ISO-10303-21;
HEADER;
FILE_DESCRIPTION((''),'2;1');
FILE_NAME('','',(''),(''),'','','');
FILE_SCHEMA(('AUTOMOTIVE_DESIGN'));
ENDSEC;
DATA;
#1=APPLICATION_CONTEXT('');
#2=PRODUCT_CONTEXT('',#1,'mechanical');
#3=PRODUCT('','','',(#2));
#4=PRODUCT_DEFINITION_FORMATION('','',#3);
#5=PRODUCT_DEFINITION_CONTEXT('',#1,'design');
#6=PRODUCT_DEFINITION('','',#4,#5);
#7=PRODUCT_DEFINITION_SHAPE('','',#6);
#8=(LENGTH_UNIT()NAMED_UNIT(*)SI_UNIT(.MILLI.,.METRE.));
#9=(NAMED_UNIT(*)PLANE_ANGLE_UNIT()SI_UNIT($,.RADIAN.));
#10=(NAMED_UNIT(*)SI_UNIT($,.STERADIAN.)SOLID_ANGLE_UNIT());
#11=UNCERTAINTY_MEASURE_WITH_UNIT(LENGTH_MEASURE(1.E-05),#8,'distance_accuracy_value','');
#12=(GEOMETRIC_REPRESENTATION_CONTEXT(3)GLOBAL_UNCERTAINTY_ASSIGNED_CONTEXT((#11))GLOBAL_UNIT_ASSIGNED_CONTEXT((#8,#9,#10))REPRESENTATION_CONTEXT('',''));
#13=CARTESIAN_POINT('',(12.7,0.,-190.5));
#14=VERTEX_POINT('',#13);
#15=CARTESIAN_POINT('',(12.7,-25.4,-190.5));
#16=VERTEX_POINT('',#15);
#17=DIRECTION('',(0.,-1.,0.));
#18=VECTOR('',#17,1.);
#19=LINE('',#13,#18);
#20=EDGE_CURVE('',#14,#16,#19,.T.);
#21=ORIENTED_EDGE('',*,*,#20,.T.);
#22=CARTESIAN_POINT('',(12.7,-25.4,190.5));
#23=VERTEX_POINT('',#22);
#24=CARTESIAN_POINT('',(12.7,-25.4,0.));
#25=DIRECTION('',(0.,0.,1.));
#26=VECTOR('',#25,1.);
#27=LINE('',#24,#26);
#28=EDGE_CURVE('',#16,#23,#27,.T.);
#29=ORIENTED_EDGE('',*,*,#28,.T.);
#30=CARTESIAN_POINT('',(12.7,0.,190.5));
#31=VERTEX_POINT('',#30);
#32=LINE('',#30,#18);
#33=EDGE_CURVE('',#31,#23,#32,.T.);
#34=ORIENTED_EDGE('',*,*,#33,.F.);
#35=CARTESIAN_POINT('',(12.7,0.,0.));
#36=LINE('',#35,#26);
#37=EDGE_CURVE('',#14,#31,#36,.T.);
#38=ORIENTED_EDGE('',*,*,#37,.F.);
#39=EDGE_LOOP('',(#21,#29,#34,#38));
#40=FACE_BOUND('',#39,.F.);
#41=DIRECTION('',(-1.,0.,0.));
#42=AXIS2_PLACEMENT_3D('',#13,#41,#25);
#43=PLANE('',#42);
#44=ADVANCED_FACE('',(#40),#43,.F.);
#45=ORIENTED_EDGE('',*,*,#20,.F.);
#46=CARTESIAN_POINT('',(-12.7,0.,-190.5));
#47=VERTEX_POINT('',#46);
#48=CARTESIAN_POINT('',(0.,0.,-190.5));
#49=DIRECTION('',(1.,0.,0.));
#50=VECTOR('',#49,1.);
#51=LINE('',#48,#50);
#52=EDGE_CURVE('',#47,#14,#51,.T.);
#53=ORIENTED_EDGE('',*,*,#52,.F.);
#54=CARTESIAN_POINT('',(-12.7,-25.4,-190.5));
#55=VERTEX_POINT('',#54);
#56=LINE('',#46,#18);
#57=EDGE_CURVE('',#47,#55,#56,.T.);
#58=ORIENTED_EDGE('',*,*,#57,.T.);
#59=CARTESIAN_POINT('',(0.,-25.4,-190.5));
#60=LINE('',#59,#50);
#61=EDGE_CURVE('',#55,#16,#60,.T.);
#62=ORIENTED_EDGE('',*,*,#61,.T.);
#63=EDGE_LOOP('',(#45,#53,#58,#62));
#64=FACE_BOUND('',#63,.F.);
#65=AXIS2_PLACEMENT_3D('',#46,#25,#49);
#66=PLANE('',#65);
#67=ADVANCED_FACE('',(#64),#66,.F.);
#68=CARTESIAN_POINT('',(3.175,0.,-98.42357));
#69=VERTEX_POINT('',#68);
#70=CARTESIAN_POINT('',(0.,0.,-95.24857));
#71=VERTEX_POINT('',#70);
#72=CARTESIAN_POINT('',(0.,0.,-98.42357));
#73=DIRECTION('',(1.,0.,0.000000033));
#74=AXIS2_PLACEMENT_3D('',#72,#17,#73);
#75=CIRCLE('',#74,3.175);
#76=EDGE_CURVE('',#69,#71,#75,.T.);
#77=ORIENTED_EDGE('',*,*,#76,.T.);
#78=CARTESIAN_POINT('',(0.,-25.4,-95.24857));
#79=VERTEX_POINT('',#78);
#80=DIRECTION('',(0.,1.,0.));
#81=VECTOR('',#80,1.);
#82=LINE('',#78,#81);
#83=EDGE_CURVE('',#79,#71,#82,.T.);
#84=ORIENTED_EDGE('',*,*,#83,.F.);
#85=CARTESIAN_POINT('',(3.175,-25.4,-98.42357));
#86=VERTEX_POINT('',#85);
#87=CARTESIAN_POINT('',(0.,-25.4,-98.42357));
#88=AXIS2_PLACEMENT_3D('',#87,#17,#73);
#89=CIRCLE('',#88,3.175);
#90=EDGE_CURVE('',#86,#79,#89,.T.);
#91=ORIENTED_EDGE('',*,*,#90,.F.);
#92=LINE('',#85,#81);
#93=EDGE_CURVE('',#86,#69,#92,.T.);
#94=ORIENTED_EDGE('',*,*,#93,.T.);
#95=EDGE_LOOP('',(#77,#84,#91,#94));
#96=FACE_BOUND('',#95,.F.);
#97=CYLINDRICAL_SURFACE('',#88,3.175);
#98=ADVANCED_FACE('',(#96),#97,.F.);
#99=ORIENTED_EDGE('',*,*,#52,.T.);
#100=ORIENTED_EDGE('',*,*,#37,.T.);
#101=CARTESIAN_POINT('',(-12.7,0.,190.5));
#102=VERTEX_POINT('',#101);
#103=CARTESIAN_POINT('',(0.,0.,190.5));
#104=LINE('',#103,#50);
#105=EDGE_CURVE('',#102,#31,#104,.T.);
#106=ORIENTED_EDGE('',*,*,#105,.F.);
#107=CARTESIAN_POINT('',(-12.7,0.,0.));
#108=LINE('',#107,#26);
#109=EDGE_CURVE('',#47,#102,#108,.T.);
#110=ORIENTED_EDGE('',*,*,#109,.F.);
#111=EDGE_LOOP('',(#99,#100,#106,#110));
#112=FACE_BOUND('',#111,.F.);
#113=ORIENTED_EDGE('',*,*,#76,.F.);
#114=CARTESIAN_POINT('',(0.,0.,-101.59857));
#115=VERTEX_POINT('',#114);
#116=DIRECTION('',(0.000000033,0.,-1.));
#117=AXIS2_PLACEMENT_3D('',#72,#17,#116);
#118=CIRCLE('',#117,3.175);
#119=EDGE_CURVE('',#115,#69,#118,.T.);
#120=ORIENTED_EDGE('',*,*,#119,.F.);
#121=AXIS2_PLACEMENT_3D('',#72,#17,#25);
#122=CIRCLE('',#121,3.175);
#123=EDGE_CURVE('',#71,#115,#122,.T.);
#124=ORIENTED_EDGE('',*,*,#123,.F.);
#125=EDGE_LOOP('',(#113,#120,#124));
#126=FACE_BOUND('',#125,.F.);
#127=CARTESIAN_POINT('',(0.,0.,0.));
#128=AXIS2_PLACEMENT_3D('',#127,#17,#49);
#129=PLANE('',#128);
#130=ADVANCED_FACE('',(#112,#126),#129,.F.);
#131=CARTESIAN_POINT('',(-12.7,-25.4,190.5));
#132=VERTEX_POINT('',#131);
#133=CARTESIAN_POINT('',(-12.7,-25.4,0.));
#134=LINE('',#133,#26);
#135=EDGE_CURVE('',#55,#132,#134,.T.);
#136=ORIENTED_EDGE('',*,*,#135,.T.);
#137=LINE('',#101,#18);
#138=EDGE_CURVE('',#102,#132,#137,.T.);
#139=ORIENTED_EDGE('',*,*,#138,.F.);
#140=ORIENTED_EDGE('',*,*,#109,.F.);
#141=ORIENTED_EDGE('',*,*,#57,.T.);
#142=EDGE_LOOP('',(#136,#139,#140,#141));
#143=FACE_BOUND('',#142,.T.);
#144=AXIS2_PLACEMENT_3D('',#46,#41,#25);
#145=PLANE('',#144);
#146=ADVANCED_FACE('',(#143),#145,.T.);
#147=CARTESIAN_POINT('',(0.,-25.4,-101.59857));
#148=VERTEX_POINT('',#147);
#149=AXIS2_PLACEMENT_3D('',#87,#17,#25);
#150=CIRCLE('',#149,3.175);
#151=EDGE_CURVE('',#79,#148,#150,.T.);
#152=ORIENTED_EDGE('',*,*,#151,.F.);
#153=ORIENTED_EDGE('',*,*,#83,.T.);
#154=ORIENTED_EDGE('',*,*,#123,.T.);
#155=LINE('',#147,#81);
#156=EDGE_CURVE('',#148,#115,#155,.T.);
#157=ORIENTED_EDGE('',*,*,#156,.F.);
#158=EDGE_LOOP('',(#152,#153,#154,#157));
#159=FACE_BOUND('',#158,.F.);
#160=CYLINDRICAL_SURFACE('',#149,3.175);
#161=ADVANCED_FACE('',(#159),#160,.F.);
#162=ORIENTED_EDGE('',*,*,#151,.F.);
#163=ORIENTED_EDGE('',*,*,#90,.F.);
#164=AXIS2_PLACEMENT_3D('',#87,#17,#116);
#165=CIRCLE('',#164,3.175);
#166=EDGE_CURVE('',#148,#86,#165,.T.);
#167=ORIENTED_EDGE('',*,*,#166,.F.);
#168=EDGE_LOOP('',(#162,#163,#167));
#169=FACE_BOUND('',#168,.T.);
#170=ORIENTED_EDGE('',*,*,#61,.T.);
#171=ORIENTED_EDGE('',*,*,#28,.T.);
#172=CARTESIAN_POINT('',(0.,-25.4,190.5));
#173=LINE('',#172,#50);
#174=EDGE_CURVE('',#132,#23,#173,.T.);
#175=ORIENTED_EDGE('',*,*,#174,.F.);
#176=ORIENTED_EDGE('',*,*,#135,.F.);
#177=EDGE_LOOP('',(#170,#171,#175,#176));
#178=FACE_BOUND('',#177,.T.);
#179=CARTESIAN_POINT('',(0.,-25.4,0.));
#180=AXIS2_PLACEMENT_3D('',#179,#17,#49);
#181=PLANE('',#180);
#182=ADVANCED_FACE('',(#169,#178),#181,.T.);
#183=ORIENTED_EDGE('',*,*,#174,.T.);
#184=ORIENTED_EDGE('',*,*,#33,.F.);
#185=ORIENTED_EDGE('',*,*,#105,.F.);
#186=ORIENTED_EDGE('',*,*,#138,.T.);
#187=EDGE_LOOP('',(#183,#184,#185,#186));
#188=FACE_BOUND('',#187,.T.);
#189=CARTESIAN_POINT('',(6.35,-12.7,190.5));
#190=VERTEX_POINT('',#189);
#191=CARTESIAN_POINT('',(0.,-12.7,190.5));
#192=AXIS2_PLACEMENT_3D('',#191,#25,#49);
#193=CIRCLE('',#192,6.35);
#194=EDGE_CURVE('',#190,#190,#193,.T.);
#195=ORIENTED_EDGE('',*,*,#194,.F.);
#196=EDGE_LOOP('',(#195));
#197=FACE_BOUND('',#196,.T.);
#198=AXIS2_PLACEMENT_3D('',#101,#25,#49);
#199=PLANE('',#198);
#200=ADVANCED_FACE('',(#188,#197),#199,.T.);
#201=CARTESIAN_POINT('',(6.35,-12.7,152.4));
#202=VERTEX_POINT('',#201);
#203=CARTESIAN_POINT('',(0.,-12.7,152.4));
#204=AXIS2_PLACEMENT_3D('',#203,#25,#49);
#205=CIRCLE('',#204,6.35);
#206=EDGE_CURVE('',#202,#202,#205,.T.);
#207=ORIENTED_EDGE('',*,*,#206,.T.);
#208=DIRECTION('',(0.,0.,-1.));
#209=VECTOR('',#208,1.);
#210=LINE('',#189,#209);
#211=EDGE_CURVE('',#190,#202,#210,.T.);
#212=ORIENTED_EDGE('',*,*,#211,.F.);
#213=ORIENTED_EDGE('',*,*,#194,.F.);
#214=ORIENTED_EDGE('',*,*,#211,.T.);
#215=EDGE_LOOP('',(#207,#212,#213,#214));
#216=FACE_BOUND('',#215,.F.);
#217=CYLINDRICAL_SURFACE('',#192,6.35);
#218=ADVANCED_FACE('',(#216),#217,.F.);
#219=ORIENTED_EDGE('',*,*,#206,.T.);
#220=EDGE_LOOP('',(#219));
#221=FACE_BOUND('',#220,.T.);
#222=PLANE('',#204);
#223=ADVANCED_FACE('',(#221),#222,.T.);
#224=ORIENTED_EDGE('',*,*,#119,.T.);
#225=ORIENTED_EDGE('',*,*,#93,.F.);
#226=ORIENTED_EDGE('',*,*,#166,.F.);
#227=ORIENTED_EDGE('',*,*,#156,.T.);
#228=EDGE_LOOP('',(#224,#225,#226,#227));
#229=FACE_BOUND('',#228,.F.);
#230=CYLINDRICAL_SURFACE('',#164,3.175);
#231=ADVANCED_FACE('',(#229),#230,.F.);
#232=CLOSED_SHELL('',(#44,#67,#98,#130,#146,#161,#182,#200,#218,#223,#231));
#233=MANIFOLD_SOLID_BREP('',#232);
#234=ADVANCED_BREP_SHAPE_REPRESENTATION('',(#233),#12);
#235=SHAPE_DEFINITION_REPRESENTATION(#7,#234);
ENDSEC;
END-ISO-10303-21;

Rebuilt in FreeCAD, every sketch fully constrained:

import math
import FreeCAD as App
import Part
import Sketcher
from FreeCAD import Vector
Q = App.Units.Quantity

doc = App.newDocument("Part")
body = doc.addObject("PartDesign::Body", "Body")

# Sketch on XZ plane
sketch1 = body.newObject("Sketcher::SketchObject", "Sketch")
sketch1.AttachmentSupport = (doc.getObject("XZ_Plane"), [""])
sketch1.MapMode = "FlatFace"
sketch1.addGeometry([
    Part.LineSegment(Vector(-13, 190, 0), Vector(-13, -190, 0)),
    Part.LineSegment(Vector(-13, -190, 0), Vector(13, -190, 0)),
    Part.LineSegment(Vector(13, -190, 0), Vector(13, 190, 0)),
    Part.LineSegment(Vector(13, 190, 0), Vector(-13, 190, 0)),
], False)
sketch1.addConstraint([
    Sketcher.Constraint("Coincident", 0, 2, 1, 1),
    Sketcher.Constraint("Coincident", 1, 2, 2, 1),
    Sketcher.Constraint("Coincident", 2, 2, 3, 1),
    Sketcher.Constraint("Coincident", 3, 2, 0, 1),
    Sketcher.Constraint("Vertical", 0),
    Sketcher.Constraint("Horizontal", 1),
    Sketcher.Constraint("Vertical", 2),
    Sketcher.Constraint("Horizontal", 3),
    Sketcher.Constraint("Symmetric", 0, 2, 2, 2, -1, 1),
    Sketcher.Constraint("DistanceX", 1, 1, 1, 2, Q("1 in")),
    Sketcher.Constraint("DistanceY", 0, 2, 0, 1, Q("15 in")),
])
pad1 = body.newObject("PartDesign::Pad", "Pad")
pad1.Profile = sketch1
pad1.Length = Q("1 in")

# Sketch on XY plane
sketch2 = body.newObject("Sketcher::SketchObject", "Sketch001")
sketch2.AttachmentSupport = (doc.getObject("XY_Plane"), [""])
sketch2.MapMode = "FlatFace"
sketch2.AttachmentOffset = App.Placement(Vector(0, 0, 7.5 * 25.4), App.Rotation())
sketch2.addGeometry(Part.Circle(Vector(0, -13, 0), Vector(0, 0, 1), 6), False)
sketch2.addConstraint([
    Sketcher.Constraint("PointOnObject", 0, 3, -2),
    Sketcher.Constraint("Diameter", 0, Q("0.5 in")),
    Sketcher.Constraint("DistanceY", 0, 3, -1, 1, Q("0.5 in")),
])
pocket1 = body.newObject("PartDesign::Pocket", "Pocket")
pocket1.Profile = sketch2
pocket1.Length = Q("1.5 in")

# Sketch on XZ plane
sketch3 = body.newObject("Sketcher::SketchObject", "Sketch002")
sketch3.AttachmentSupport = (doc.getObject("XZ_Plane"), [""])
sketch3.MapMode = "FlatFace"
sketch3.AttachmentOffset = App.Placement(Vector(0, 0, 1 * 25.4), App.Rotation())
sketch3.addGeometry([
    Part.ArcOfCircle(Part.Circle(Vector(0, -98.4, 0), Vector(0, 0, 1), 3.2), math.radians(90), math.radians(270)),
    Part.ArcOfCircle(Part.Circle(Vector(0, -98.4, 0), Vector(0, 0, 1), 3.2), math.radians(-90), math.radians(0)),
    Part.ArcOfCircle(Part.Circle(Vector(0, -98.4, 0), Vector(0, 0, 1), 3.2), math.radians(0), math.radians(90)),
], False)
sketch3.addConstraint([
    Sketcher.Constraint("Tangent", 0, 2, 1, 1),
    Sketcher.Constraint("Tangent", 1, 2, 2, 1),
    Sketcher.Constraint("Tangent", 2, 2, 0, 1),
    Sketcher.Constraint("PointOnObject", 0, 3, -2),
    Sketcher.Constraint("PointOnObject", 0, 2, -2),
    Sketcher.Constraint("PointOnObject", 2, 2, -2),
    Sketcher.Constraint("Horizontal", 2, 3, 1, 2),
    Sketcher.Constraint("Radius", 0, Q("0.125 in")),
    Sketcher.Constraint("DistanceY", 0, 3, -1, 1, 98.42357),
])
pocket2 = body.newObject("PartDesign::Pocket", "Pocket001")
pocket2.Profile = sketch3
pocket2.Type = "ThroughAll"

doc.recompute()
